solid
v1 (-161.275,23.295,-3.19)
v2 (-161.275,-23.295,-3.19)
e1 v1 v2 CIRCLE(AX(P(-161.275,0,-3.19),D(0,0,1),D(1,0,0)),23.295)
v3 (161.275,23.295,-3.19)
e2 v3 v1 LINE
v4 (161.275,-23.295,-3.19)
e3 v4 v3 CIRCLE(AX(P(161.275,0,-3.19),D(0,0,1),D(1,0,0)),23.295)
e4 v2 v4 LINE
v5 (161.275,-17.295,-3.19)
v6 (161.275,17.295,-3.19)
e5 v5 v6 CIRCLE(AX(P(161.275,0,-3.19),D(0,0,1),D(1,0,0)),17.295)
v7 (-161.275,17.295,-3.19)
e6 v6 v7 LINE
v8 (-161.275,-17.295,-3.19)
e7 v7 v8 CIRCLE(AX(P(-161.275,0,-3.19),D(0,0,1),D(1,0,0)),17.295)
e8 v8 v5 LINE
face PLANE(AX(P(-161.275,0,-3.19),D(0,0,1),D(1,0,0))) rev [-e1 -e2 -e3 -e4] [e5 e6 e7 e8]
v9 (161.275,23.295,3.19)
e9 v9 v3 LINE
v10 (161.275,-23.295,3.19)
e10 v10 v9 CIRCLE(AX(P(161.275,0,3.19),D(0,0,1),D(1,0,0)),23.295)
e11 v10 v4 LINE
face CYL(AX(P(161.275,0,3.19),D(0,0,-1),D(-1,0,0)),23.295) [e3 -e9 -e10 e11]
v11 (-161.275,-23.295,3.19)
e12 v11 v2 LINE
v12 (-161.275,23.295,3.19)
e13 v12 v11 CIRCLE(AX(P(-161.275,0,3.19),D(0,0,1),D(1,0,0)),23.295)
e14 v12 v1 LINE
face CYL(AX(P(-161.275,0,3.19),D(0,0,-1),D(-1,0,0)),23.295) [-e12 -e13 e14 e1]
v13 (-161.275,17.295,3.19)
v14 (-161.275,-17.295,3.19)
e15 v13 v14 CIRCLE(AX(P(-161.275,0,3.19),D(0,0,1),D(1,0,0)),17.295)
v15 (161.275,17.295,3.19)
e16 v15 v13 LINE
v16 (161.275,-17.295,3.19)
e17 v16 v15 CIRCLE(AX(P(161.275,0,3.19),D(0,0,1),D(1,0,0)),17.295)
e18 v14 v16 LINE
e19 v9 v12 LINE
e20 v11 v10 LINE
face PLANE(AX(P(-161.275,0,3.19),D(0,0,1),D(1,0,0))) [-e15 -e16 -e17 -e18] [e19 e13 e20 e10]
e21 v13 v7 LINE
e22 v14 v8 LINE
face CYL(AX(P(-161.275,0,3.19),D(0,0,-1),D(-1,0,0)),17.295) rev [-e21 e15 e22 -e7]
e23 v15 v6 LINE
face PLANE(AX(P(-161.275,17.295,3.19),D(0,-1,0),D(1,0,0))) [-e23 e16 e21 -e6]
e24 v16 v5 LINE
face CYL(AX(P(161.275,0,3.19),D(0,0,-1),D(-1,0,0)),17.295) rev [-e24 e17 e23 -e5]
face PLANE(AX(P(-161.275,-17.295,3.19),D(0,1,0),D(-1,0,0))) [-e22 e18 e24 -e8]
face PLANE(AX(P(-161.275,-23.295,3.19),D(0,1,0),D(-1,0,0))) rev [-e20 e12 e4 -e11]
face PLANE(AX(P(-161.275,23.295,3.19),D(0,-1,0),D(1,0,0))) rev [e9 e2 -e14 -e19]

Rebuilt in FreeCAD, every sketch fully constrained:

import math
import FreeCAD as App
import Part
import Sketcher

V = App.Vector
Q = App.Units.Quantity

doc = App.newDocument("Part")
body = doc.addObject("PartDesign::Body", "Body")

# Sketch on XY plane
sketch1 = body.newObject("Sketcher::SketchObject", "Sketch")
sketch1.AttachmentSupport = (doc.getObject("XY_Plane"), [""])
sketch1.MapMode = "FlatFace"
sketch1.addGeometry([
    Part.LineSegment(V(161, 23, 0), V(-161, 23, 0)),  # 0
    Part.ArcOfCircle(Part.Circle(V(-161, 0, 0), V(0, 0, 1), 23), math.radians(90), math.radians(270)),  # 1
    Part.LineSegment(V(-161, -23, 0), V(161, -23, 0)),  # 2
    Part.ArcOfCircle(Part.Circle(V(161, 0, 0), V(0, 0, 1), 23), math.radians(-90), math.radians(90)),  # 3
    Part.LineSegment(V(-161, 17, 0), V(161, 17, 0)),  # 4
    Part.ArcOfCircle(Part.Circle(V(161, 0, 0), V(0, 0, 1), 17), math.radians(-90), math.radians(90)),  # 5
    Part.LineSegment(V(161, -17, 0), V(-161, -17, 0)),  # 6
    Part.ArcOfCircle(Part.Circle(V(-161, 0, 0), V(0, 0, 1), 17), math.radians(90), math.radians(270)),  # 7
], False)
sketch1.addConstraint([
    Sketcher.Constraint("Tangent", 0, 2, 1, 1),
    Sketcher.Constraint("Tangent", 1, 2, 2, 1),
    Sketcher.Constraint("Tangent", 2, 2, 3, 1),
    Sketcher.Constraint("Tangent", 3, 2, 0, 1),
    Sketcher.Constraint("Tangent", 4, 2, 5, 2),
    Sketcher.Constraint("Tangent", 5, 1, 6, 1),
    Sketcher.Constraint("Tangent", 6, 2, 7, 2),
    Sketcher.Constraint("Tangent", 7, 1, 4, 1),
    Sketcher.Constraint("Horizontal", 0),
    Sketcher.Constraint("Horizontal", 2),
    Sketcher.Constraint("Horizontal", 4),
    Sketcher.Constraint("Horizontal", 6),
    Sketcher.Constraint("Coincident", 5, 3, 3, 3),
    Sketcher.Constraint("Symmetric", 1, 3, 3, 3, -1, 1),
    Sketcher.Constraint("Vertical", 7, 3, 0, 2),
    Sketcher.Constraint("Radius", 1, Q("23.295 mm")),
    Sketcher.Constraint("Radius", 5, Q("17.295 mm")),
    Sketcher.Constraint("DistanceX", 0, 2, 0, 1, Q("322.55 mm")),
])
pad1 = body.newObject("PartDesign::Pad", "Pad")
pad1.Profile = sketch1
pad1.Length = 6.38
pad1.Midplane = True

doc.recompute()
